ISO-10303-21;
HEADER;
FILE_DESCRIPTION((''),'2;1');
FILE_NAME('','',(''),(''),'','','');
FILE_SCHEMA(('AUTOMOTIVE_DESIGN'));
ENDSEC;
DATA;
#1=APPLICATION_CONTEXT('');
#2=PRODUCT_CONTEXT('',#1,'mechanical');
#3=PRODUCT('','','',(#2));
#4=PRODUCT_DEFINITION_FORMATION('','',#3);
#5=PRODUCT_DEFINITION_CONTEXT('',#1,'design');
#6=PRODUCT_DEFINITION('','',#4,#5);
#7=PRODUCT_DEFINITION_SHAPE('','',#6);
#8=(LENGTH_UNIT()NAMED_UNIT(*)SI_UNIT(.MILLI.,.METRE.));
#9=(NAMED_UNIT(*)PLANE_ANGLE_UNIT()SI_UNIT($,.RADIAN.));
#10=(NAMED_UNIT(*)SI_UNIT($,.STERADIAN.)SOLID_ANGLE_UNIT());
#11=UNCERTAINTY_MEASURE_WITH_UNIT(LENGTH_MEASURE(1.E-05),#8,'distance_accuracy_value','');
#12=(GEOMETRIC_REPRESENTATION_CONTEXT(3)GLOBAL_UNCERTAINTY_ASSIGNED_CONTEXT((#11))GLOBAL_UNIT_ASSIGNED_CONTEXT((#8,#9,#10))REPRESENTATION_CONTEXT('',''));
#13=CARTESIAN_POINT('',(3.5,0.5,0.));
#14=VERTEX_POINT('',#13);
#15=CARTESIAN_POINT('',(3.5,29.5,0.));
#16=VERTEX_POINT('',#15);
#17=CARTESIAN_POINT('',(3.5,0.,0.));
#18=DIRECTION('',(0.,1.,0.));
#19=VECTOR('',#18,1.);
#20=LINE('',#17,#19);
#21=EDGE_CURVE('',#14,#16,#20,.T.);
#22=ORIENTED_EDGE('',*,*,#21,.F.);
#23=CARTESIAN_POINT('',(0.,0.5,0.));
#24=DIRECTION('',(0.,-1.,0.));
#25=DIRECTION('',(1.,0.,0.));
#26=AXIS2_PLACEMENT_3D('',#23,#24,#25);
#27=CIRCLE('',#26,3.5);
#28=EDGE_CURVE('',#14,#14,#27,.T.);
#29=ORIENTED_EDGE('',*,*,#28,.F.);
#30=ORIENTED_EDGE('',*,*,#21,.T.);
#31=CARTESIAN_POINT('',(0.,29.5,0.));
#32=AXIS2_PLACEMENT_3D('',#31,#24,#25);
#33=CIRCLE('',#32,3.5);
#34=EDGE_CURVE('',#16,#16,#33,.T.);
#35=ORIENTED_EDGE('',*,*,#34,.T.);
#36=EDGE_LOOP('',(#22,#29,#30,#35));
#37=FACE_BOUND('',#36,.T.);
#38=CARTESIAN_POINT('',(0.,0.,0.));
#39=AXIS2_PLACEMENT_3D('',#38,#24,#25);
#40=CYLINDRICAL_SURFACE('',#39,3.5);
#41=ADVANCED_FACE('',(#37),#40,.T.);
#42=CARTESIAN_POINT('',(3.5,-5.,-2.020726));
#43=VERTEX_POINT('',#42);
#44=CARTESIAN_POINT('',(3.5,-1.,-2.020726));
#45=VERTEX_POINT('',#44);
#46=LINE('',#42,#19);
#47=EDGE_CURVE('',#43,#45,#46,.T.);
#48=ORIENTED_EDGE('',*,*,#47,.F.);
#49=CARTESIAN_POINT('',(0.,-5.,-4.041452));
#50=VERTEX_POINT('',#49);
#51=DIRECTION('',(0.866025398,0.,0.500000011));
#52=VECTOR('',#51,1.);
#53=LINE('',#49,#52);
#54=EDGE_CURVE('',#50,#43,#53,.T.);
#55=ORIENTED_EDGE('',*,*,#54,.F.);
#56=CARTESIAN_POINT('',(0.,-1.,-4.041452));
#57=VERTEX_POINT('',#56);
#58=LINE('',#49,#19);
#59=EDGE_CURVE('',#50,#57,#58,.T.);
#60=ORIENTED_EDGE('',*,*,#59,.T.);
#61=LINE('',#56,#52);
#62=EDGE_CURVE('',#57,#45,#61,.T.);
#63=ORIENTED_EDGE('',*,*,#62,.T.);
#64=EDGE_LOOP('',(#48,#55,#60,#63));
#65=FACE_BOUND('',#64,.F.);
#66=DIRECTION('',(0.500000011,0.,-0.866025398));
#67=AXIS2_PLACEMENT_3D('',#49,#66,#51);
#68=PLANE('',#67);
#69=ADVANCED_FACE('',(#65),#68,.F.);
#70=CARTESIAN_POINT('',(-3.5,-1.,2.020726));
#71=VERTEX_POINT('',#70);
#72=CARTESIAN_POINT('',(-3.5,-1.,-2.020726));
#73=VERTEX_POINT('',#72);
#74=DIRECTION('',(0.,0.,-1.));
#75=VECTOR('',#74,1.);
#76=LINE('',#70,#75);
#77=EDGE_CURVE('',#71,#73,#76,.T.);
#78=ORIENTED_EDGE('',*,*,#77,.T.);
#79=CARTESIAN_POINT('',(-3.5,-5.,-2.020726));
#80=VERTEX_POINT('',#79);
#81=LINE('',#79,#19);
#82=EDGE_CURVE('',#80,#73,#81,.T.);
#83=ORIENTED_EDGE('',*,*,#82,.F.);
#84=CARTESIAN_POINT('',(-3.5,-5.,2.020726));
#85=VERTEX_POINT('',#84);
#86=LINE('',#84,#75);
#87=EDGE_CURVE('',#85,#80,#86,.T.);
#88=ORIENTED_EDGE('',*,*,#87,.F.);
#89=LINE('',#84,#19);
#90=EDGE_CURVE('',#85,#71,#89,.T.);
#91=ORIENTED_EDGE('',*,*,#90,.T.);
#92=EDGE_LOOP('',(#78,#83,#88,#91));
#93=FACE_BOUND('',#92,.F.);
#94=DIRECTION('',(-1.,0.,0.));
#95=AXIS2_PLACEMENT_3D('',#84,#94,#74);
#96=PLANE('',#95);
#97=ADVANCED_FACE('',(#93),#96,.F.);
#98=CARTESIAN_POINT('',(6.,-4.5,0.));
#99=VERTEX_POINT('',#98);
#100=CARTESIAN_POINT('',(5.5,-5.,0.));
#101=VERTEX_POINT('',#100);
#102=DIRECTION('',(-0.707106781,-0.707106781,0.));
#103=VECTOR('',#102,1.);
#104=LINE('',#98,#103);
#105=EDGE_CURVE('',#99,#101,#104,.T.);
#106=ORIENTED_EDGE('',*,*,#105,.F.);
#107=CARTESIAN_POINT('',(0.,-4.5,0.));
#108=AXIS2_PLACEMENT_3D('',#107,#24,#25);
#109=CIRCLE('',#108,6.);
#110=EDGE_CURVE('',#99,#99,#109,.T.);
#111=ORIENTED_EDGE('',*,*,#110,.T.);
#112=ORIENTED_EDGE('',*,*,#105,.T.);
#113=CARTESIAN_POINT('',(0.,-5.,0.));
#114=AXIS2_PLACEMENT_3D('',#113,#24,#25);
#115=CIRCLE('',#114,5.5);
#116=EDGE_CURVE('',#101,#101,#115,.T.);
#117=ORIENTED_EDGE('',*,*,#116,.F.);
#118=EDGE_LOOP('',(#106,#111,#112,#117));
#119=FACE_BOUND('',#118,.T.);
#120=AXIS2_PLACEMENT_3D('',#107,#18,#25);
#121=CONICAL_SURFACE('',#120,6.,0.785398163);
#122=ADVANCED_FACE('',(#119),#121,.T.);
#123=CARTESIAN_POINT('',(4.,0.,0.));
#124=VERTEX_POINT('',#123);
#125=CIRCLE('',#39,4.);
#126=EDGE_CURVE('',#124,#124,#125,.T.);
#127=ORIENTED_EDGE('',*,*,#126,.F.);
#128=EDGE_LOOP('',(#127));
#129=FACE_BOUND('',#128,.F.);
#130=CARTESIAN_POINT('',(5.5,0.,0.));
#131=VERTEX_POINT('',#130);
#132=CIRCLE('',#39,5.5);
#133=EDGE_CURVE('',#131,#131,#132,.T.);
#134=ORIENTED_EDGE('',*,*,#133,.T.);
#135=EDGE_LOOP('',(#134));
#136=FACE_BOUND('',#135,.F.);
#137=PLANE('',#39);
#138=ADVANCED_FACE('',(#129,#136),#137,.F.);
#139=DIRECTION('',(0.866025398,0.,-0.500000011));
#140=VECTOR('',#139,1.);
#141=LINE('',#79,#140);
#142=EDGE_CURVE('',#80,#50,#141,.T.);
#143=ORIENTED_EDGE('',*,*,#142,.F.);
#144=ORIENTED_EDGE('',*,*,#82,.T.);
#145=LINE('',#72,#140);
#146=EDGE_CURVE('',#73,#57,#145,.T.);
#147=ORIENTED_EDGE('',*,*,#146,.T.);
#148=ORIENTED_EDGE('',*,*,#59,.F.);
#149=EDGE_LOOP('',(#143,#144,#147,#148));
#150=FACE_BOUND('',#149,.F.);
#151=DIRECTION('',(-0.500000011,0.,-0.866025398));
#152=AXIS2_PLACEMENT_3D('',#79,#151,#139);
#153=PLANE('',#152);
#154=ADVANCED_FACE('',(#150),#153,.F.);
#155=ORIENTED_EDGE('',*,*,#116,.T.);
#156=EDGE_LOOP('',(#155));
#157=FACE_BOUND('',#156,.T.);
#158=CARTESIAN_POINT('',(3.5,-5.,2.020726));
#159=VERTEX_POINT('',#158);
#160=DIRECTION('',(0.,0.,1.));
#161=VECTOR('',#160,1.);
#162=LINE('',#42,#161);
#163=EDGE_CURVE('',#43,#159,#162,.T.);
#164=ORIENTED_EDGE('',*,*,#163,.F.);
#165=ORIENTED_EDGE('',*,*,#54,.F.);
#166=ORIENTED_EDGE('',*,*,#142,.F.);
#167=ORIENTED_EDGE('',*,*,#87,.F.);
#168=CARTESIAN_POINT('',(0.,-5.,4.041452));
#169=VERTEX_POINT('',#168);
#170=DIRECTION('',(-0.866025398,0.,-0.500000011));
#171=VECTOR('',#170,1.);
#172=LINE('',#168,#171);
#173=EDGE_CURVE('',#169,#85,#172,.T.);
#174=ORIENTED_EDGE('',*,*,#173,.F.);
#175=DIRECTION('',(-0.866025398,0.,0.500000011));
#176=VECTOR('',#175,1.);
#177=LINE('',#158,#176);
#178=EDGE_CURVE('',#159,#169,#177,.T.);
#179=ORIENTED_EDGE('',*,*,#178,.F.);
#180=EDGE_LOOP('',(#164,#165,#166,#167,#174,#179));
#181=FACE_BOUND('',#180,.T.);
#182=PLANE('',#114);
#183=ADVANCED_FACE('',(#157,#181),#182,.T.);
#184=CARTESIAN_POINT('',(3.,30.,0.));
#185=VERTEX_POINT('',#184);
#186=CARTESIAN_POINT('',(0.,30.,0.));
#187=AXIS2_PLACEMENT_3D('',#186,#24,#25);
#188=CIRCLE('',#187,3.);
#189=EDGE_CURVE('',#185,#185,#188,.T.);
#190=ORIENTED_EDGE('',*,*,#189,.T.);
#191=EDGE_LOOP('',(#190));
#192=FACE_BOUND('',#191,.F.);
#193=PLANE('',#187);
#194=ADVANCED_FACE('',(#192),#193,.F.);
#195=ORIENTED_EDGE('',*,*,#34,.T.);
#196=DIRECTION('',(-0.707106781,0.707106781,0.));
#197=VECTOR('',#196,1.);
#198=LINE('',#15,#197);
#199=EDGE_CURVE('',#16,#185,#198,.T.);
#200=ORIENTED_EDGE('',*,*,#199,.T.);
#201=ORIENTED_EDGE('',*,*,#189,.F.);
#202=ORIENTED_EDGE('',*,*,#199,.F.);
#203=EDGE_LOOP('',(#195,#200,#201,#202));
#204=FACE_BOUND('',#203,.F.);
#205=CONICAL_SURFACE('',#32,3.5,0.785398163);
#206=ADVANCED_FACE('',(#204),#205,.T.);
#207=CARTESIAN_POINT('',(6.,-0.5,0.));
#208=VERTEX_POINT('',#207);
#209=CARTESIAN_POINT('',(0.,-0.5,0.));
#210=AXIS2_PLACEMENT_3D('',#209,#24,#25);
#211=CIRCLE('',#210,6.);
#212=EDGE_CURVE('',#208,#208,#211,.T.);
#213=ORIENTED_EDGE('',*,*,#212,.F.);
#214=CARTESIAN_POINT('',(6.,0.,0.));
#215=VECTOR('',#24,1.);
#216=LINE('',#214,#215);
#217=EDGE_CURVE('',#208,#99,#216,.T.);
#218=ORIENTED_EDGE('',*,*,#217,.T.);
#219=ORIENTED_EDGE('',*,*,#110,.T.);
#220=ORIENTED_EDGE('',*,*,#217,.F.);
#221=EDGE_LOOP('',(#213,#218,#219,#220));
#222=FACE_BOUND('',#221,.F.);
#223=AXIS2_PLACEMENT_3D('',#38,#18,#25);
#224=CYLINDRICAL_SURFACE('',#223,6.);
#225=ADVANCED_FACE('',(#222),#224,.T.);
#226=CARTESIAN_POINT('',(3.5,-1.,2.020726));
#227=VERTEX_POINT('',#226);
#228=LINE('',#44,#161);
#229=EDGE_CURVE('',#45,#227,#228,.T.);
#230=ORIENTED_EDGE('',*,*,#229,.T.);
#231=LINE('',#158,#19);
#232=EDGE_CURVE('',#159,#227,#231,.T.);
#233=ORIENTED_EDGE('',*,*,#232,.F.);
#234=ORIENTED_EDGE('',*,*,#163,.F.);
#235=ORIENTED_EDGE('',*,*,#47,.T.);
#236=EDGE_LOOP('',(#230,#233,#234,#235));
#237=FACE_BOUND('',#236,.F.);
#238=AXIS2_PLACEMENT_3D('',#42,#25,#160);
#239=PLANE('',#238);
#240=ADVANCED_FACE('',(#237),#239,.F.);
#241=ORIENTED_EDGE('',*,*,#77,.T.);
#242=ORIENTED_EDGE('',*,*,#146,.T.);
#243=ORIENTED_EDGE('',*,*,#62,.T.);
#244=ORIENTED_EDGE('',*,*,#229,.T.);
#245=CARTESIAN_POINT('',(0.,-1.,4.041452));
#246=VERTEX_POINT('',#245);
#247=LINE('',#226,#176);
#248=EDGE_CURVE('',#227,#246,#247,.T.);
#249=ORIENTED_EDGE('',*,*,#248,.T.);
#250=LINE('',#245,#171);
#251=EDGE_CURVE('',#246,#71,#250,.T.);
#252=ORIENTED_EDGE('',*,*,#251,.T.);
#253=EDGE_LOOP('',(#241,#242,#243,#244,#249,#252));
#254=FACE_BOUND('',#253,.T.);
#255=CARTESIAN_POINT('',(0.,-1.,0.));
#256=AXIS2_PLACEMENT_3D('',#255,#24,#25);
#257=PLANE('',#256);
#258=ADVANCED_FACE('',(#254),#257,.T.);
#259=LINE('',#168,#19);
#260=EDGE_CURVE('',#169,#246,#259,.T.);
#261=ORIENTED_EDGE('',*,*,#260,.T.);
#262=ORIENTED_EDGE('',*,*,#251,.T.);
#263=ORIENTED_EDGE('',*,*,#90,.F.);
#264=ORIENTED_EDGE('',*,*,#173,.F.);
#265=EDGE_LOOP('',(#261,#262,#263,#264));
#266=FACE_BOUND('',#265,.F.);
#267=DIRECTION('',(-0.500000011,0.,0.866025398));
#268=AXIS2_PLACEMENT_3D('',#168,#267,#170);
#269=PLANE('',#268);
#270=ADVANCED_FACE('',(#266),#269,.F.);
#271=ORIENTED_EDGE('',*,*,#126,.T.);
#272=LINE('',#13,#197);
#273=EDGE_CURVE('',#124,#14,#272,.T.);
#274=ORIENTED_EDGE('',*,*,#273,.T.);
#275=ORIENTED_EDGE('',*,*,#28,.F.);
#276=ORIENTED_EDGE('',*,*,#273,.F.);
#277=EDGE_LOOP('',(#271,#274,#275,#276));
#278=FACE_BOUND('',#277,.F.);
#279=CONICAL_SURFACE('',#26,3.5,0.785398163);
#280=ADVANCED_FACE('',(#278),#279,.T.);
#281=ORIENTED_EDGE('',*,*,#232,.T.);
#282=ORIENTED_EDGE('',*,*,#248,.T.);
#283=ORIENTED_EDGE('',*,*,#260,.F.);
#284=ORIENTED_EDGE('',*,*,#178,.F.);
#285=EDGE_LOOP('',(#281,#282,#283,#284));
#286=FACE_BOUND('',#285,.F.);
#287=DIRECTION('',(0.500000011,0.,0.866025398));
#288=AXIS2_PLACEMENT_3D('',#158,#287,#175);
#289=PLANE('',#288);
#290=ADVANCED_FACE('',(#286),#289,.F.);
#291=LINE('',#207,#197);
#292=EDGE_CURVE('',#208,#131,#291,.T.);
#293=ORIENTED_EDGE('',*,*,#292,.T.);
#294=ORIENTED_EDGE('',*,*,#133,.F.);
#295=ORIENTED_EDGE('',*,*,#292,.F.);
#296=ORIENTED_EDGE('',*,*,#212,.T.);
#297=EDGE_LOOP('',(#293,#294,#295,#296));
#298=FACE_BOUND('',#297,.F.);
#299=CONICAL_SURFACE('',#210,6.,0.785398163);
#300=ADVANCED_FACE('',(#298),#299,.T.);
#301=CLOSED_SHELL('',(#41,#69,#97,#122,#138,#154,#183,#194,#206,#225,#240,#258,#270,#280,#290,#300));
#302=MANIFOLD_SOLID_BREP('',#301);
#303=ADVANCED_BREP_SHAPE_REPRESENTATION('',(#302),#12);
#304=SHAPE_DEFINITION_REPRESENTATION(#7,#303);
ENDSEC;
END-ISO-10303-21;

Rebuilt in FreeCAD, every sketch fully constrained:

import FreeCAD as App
import Part
import Sketcher
from FreeCAD import Vector
Q = App.Units.Quantity


def edges_at(feature, points):
    """Names of the edges that pass closest to the given points."""
    edges = feature.Shape.Edges
    near = lambda p: min(range(len(edges)), key=lambda i: edges[i].distToShape(Part.Vertex(*p))[0])
    return sorted({f"Edge{near(p) + 1}" for p in points})


def add_polygon(sketch, points):
    """Adds a closed chain of lines whose ends are joined by coincident constraints."""
    first, n = sketch.GeometryCount, len(points)
    for a, b in zip(points, points[1:] + points[:1]):
        sketch.addGeometry(Part.LineSegment(App.Vector(*a, 0), App.Vector(*b, 0)), False)
    for i in range(n):
        sketch.addConstraint(Sketcher.Constraint("Coincident", first + i, 2, first + (i + 1) % n, 1))

doc = App.newDocument("Part")
body = doc.addObject("PartDesign::Body", "Body")

# Sketch on XZ plane
sketch1 = body.newObject("Sketcher::SketchObject", "Sketch")
sketch1.AttachmentSupport = (doc.getObject("XZ_Plane"), [""])
sketch1.MapMode = "FlatFace"
sketch1.addGeometry(Part.Circle(Vector(0, 0, 0), Vector(0, 0, 1), 3.5), False)
sketch1.addConstraint([
    Sketcher.Constraint("Coincident", 0, 3, -1, 1),
    Sketcher.Constraint("Diameter", 0, 7.0),
])
pad1 = body.newObject("PartDesign::Pad", "Pad")
pad1.Profile = sketch1
pad1.Length = 30
pad1.Reversed = True

# Sketch on XZ plane
sketch2 = body.newObject("Sketcher::SketchObject", "Sketch001")
sketch2.AttachmentSupport = (doc.getObject("XZ_Plane"), [""])
sketch2.MapMode = "FlatFace"
sketch2.addGeometry(Part.Circle(Vector(0, 0, 0), Vector(0, 0, 1), 6), False)
sketch2.addConstraint([
    Sketcher.Constraint("Coincident", 0, 3, -1, 1),
    Sketcher.Constraint("Diameter", 0, 12.0),
])
pad2 = body.newObject("PartDesign::Pad", "Pad001")
pad2.Profile = sketch2
pad2.Length = 5
doc.recompute()

chamfer = body.newObject("PartDesign::Chamfer", "Chamfer")
chamfer.Base = (pad2, edges_at(pad2, [
    (-6, -5, 0),
    (-6, 0, 0),
    (-3.5, 30, 0),
    (-3.5, 0, 0),
]))
chamfer.Size = 0.5

# Sketch on XZ plane
sketch3 = body.newObject("Sketcher::SketchObject", "Sketch002")
sketch3.AttachmentSupport = (doc.getObject("XZ_Plane"), [""])
sketch3.MapMode = "FlatFace"
sketch3.AttachmentOffset = App.Placement(Vector(0, 0, 5), App.Rotation())
add_polygon(sketch3, [(-3.5, 2), (-3.5, -2), (0, -4), (3.5, -2), (3.5, 2), (0, 4)])  # lines 0-5
sketch3.addConstraint([
    Sketcher.Constraint("Vertical", 0),
    Sketcher.Constraint("Vertical", 3),
    Sketcher.Constraint("Symmetric", 0, 2, 3, 2, -1, 1),
    Sketcher.Constraint("Symmetric", 1, 2, 4, 2, -1, 1),
    Sketcher.Constraint("PointOnObject", 1, 2, -2),
    Sketcher.Constraint("Parallel", 2, 5),
    Sketcher.Constraint("Horizontal", 0, 2, 2, 2),
    Sketcher.Constraint("Angle", 1, Q("-30.000001 deg")),
    Sketcher.Constraint("DistanceX", 0, 2, 2, 2, 7.0),
    Sketcher.Constraint("DistanceY", 0, 2, 0, 1, 4.041452),
])
pocket1 = body.newObject("PartDesign::Pocket", "Pocket")
pocket1.Profile = sketch3
pocket1.Length = 4

doc.recompute()
